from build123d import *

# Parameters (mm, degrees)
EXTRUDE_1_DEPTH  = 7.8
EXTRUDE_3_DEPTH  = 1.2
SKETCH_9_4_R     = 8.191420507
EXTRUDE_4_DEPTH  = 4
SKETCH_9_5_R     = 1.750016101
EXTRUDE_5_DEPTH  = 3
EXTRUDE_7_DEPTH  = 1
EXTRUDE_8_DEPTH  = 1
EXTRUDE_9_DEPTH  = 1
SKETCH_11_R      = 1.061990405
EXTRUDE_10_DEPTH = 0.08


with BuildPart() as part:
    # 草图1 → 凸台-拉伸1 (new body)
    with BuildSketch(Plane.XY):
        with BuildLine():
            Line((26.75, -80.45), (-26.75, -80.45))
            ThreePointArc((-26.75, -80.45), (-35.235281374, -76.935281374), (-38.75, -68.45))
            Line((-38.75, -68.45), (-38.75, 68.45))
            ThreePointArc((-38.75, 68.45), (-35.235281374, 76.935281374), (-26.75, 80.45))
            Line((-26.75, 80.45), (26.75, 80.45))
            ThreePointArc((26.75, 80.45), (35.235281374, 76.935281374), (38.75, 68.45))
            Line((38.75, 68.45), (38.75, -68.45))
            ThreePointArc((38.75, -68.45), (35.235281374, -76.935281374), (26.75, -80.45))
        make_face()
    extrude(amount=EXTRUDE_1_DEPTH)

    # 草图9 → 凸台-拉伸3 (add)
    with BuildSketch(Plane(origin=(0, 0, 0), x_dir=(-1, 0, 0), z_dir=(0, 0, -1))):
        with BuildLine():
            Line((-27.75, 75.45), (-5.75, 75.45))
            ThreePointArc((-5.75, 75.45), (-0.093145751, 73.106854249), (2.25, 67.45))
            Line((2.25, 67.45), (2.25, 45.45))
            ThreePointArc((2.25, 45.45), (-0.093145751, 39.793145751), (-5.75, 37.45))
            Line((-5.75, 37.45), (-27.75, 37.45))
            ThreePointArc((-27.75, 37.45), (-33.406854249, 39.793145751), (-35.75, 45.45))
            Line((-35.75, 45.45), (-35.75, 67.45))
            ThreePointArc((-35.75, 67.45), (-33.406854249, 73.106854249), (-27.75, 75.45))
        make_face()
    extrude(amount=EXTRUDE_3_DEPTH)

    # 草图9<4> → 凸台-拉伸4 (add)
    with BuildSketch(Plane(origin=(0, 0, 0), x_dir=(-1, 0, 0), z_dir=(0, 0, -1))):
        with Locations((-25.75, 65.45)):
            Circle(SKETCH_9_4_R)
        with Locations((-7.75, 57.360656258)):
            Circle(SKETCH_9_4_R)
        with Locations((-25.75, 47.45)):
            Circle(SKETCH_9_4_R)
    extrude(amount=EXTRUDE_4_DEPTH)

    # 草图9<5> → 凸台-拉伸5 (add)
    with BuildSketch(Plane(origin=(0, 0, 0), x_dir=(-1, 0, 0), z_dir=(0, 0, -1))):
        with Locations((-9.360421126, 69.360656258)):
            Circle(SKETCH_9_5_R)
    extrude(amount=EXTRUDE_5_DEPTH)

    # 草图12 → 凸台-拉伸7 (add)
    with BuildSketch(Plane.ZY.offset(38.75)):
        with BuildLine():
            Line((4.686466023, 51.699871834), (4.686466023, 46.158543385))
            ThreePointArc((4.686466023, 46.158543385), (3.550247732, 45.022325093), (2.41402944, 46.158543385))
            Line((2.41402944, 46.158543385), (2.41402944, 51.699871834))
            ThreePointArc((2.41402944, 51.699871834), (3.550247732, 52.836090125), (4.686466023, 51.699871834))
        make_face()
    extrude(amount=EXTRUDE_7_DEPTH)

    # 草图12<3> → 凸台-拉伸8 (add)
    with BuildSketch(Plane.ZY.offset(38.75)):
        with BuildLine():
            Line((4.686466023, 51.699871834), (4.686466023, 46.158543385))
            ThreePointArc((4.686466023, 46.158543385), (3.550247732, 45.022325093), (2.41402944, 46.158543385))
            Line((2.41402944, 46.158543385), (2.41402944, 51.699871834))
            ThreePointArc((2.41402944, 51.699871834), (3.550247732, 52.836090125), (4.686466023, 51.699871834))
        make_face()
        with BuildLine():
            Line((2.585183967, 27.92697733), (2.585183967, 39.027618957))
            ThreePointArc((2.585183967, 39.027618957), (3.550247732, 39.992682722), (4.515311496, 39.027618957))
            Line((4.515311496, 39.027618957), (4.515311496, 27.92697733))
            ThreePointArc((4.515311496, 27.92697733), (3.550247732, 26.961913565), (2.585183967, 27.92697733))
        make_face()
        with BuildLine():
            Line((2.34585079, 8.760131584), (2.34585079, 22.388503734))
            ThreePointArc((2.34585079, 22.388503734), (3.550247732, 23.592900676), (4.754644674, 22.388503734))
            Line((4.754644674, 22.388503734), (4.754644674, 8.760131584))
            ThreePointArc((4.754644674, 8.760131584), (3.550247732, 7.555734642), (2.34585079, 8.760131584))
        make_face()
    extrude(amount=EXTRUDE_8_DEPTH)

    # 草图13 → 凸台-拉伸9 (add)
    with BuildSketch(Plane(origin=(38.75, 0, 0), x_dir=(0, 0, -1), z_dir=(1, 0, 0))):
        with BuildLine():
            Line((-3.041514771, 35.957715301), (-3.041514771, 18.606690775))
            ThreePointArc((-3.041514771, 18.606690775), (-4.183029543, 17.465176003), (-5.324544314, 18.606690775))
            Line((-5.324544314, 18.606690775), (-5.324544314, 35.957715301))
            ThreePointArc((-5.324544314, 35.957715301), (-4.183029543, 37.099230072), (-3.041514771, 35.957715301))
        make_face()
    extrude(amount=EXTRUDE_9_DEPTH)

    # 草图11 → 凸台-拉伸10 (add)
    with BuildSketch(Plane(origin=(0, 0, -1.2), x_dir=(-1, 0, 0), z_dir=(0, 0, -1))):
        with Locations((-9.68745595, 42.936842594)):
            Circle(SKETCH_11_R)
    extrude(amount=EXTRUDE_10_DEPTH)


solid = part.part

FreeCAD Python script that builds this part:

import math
import FreeCAD as App
import Part
import Sketcher

V = App.Vector

doc = App.newDocument("Part")
body = doc.addObject("PartDesign::Body", "Body")

# Sketch on XY plane
sketch1 = body.newObject("Sketcher::SketchObject", "Sketch")
sketch1.AttachmentSupport = (doc.getObject("XY_Plane"), [""])
sketch1.MapMode = "FlatFace"
sketch1.addGeometry([
    Part.LineSegment(V(-27, -80, 0), V(27, -80, 0)),  # 0
    Part.ArcOfCircle(Part.Circle(V(27, -68, 0), V(0, 0, 1), 12), math.radians(-90), math.radians(0)),  # 1
    Part.LineSegment(V(39, -68, 0), V(39, 68, 0)),  # 2
    Part.ArcOfCircle(Part.Circle(V(27, 68, 0), V(0, 0, 1), 12), math.radians(0), math.radians(90)),  # 3
    Part.LineSegment(V(27, 80, 0), V(-27, 80, 0)),  # 4
    Part.ArcOfCircle(Part.Circle(V(-27, 68, 0), V(0, 0, 1), 12), math.radians(90), math.radians(180)),  # 5
    Part.LineSegment(V(-39, 68, 0), V(-39, -68, 0)),  # 6
    Part.ArcOfCircle(Part.Circle(V(-27, -68, 0), V(0, 0, 1), 12), math.radians(-180), math.radians(-90)),  # 7
], False)
sketch1.addConstraint([
    Sketcher.Constraint("Tangent", 0, 2, 1, 1),
    Sketcher.Constraint("Tangent", 1, 2, 2, 1),
    Sketcher.Constraint("Tangent", 2, 2, 3, 1),
    Sketcher.Constraint("Tangent", 3, 2, 4, 1),
    Sketcher.Constraint("Tangent", 4, 2, 5, 1),
    Sketcher.Constraint("Tangent", 5, 2, 6, 1),
    Sketcher.Constraint("Tangent", 6, 2, 7, 1),
    Sketcher.Constraint("Tangent", 7, 2, 0, 1),
    Sketcher.Constraint("Horizontal", 0),
    Sketcher.Constraint("Vertical", 2),
    Sketcher.Constraint("Horizontal", 4),
    Sketcher.Constraint("Vertical", 6),
    Sketcher.Constraint("Equal", 1, 3),
    Sketcher.Constraint("Equal", 3, 5),
    Sketcher.Constraint("Equal", 5, 7),
    Sketcher.Constraint("Symmetric", 1, 3, 5, 3, -1, 1),
    Sketcher.Constraint("Radius", 1, 12.0),
    Sketcher.Constraint("DistanceX", 0, 1, 0, 2, 53.5),
    Sketcher.Constraint("DistanceY", 2, 1, 2, 2, 136.9),
])
pad1 = body.newObject("PartDesign::Pad", "Pad")
pad1.Profile = sketch1
pad1.Length = 7.8

# Sketch on XY plane
sketch2 = body.newObject("Sketcher::SketchObject", "Sketch001")
sketch2.AttachmentSupport = (doc.getObject("XY_Plane"), [""])
sketch2.MapMode = "FlatFace"
sketch2.addGeometry([
    Part.LineSegment(V(6, 75, 0), V(28, 75, 0)),  # 0
    Part.ArcOfCircle(Part.Circle(V(28, 67, 0), V(0, 0, 1), 8), math.radians(0), math.radians(90)),  # 1
    Part.LineSegment(V(36, 67, 0), V(36, 45, 0)),  # 2
    Part.ArcOfCircle(Part.Circle(V(28, 45, 0), V(0, 0, 1), 8), math.radians(-90), math.radians(0)),  # 3
    Part.LineSegment(V(28, 37, 0), V(6, 37, 0)),  # 4
    Part.ArcOfCircle(Part.Circle(V(6, 45, 0), V(0, 0, 1), 8), math.radians(-180), math.radians(-90)),  # 5
    Part.LineSegment(V(-2, 45, 0), V(-2, 67, 0)),  # 6
    Part.ArcOfCircle(Part.Circle(V(6, 67, 0), V(0, 0, 1), 8), math.radians(90), math.radians(180)),  # 7
], False)
sketch2.addConstraint([
    Sketcher.Constraint("Tangent", 0, 2, 1, 2),
    Sketcher.Constraint("Tangent", 1, 1, 2, 1),
    Sketcher.Constraint("Tangent", 2, 2, 3, 2),
    Sketcher.Constraint("Tangent", 3, 1, 4, 1),
    Sketcher.Constraint("Tangent", 4, 2, 5, 2),
    Sketcher.Constraint("Tangent", 5, 1, 6, 1),
    Sketcher.Constraint("Tangent", 6, 2, 7, 2),
    Sketcher.Constraint("Tangent", 7, 1, 0, 1),
    Sketcher.Constraint("Horizontal", 0),
    Sketcher.Constraint("Vertical", 2),
    Sketcher.Constraint("Horizontal", 4),
    Sketcher.Constraint("Vertical", 6),
    Sketcher.Constraint("Equal", 1, 3),
    Sketcher.Constraint("Equal", 3, 5),
    Sketcher.Constraint("Equal", 5, 7),
    Sketcher.Constraint("Equal", 4, 2),
    Sketcher.Constraint("Radius", 1, 8.0),
    Sketcher.Constraint("DistanceX", 0, 1, 0, 2, 22.0),
    Sketcher.Constraint("DistanceX", -1, 1, 1, 3, 27.75),
    Sketcher.Constraint("DistanceY", -1, 1, 1, 3, 67.45),
])
pad2 = body.newObject("PartDesign::Pad", "Pad001")
pad2.Profile = sketch2
pad2.Length = 1.2
pad2.Reversed = True

# Sketch on XY plane
sketch3 = body.newObject("Sketcher::SketchObject", "Sketch002")
sketch3.AttachmentSupport = (doc.getObject("XY_Plane"), [""])
sketch3.MapMode = "FlatFace"
sketch3.addGeometry([
    Part.Circle(V(26, 65, 0), V(0, 0, 1), 8),
    Part.Circle(V(8, 57, 0), V(0, 0, 1), 8),
    Part.Circle(V(26, 47, 0), V(0, 0, 1), 8),
], False)
sketch3.addConstraint([
    Sketcher.Constraint("Equal", 0, 1),
    Sketcher.Constraint("Equal", 1, 2),
    Sketcher.Constraint("Vertical", 0, 3, 2, 3),
    Sketcher.Constraint("DistanceX", 1, 3, 0, 3, 18.0),
    Sketcher.Constraint("DistanceY", 2, 3, 0, 3, 18.0),
    Sketcher.Constraint("Diameter", 0, 16.382841),
    Sketcher.Constraint("DistanceX", -1, 1, 0, 3, 25.75),
    Sketcher.Constraint("DistanceY", -1, 1, 0, 3, 65.45),
    Sketcher.Constraint("DistanceY", -1, 1, 1, 3, 57.360656),
])
pad3 = body.newObject("PartDesign::Pad", "Pad002")
pad3.Profile = sketch3
pad3.Length = 4
pad3.Reversed = True

# Sketch on XY plane
sketch4 = body.newObject("Sketcher::SketchObject", "Sketch003")
sketch4.AttachmentSupport = (doc.getObject("XY_Plane"), [""])
sketch4.MapMode = "FlatFace"
sketch4.addGeometry(Part.Circle(V(9.4, 69.4, 0), V(0, 0, 1), 1.8), False)
sketch4.addConstraint([
    Sketcher.Constraint("Diameter", 0, 3.500032),
    Sketcher.Constraint("DistanceX", -1, 1, 0, 3, 9.360421),
    Sketcher.Constraint("DistanceY", -1, 1, 0, 3, 69.360656),
])
pad4 = body.newObject("PartDesign::Pad", "Pad003")
pad4.Profile = sketch4
pad4.Length = 3
pad4.Reversed = True

# Sketch on YZ plane
sketch5 = body.newObject("Sketcher::SketchObject", "Sketch004")
sketch5.AttachmentSupport = (doc.getObject("YZ_Plane"), [""])
sketch5.MapMode = "FlatFace"
sketch5.AttachmentOffset = App.Placement(V(0, 0, -38.75), App.Rotation())
sketch5.addGeometry([
    Part.LineSegment(V(46.2, 4.7, 0), V(51.7, 4.7, 0)),
    Part.ArcOfCircle(Part.Circle(V(51.7, 3.6, 0), V(0, 0, 1), 1.1), math.radians(-90), math.radians(90)),
    Part.LineSegment(V(51.7, 2.4, 0), V(46.2, 2.4, 0)),
    Part.ArcOfCircle(Part.Circle(V(46.2, 3.6, 0), V(0, 0, 1), 1.1), math.radians(90), math.radians(270)),
], False)
sketch5.addConstraint([
    Sketcher.Constraint("Tangent", 0, 2, 1, 2),
    Sketcher.Constraint("Tangent", 1, 1, 2, 1),
    Sketcher.Constraint("Tangent", 2, 2, 3, 2),
    Sketcher.Constraint("Tangent", 3, 1, 0, 1),
    Sketcher.Constraint("Horizontal", 0),
    Sketcher.Constraint("Horizontal", 2),
    Sketcher.Constraint("Radius", 1, 1.136218),
    Sketcher.Constraint("DistanceX", 0, 1, 0, 2, 5.541328),
    Sketcher.Constraint("DistanceX", -1, 1, 1, 3, 51.699872),
    Sketcher.Constraint("DistanceY", -1, 1, 1, 1, 2.414029),
])
pad5 = body.newObject("PartDesign::Pad", "Pad004")
pad5.Profile = sketch5
pad5.Length = 1
pad5.Reversed = True

# Sketch on YZ plane
sketch6 = body.newObject("Sketcher::SketchObject", "Sketch005")
sketch6.AttachmentSupport = (doc.getObject("YZ_Plane"), [""])
sketch6.MapMode = "FlatFace"
sketch6.AttachmentOffset = App.Placement(V(0, 0, -38.75), App.Rotation())
sketch6.addGeometry([
    Part.LineSegment(V(46.2, 4.7, 0), V(51.7, 4.7, 0)),  # 0
    Part.ArcOfCircle(Part.Circle(V(51.7, 3.6, 0), V(0, 0, 1), 1.1), math.radians(-90), math.radians(90)),  # 1
    Part.LineSegment(V(51.7, 2.4, 0), V(46.2, 2.4, 0)),  # 2
    Part.ArcOfCircle(Part.Circle(V(46.2, 3.6, 0), V(0, 0, 1), 1.1), math.radians(90), math.radians(270)),  # 3
    Part.LineSegment(V(39, 2.6, 0), V(27.9, 2.6, 0)),  # 4
    Part.ArcOfCircle(Part.Circle(V(27.9, 3.6, 0), V(0, 0, 1), 1), math.radians(90), math.radians(270)),  # 5
    Part.LineSegment(V(27.9, 4.5, 0), V(39, 4.5, 0)),  # 6
    Part.ArcOfCircle(Part.Circle(V(39, 3.6, 0), V(0, 0, 1), 1), math.radians(-90), math.radians(90)),  # 7
    Part.LineSegment(V(22.4, 2.3, 0), V(8.8, 2.3, 0)),  # 8
    Part.ArcOfCircle(Part.Circle(V(8.8, 3.6, 0), V(0, 0, 1), 1.2), math.radians(90), math.radians(270)),  # 9
    Part.LineSegment(V(8.8, 4.8, 0), V(22.4, 4.8, 0)),  # 10
    Part.ArcOfCircle(Part.Circle(V(22.4, 3.6, 0), V(0, 0, 1), 1.2), math.radians(-90), math.radians(90)),  # 11
], False)
sketch6.addConstraint([
    Sketcher.Constraint("Tangent", 0, 2, 1, 2),
    Sketcher.Constraint("Tangent", 1, 1, 2, 1),
    Sketcher.Constraint("Tangent", 2, 2, 3, 2),
    Sketcher.Constraint("Tangent", 3, 1, 0, 1),
    Sketcher.Constraint("Tangent", 4, 2, 5, 2),
    Sketcher.Constraint("Tangent", 5, 1, 6, 1),
    Sketcher.Constraint("Tangent", 6, 2, 7, 2),
    Sketcher.Constraint("Tangent", 7, 1, 4, 1),
    Sketcher.Constraint("Tangent", 8, 2, 9, 2),
    Sketcher.Constraint("Tangent", 9, 1, 10, 1),
    Sketcher.Constraint("Tangent", 10, 2, 11, 2),
    Sketcher.Constraint("Tangent", 11, 1, 8, 1),
    Sketcher.Constraint("Horizontal", 0),
    Sketcher.Constraint("Horizontal", 2),
    Sketcher.Constraint("Horizontal", 4),
    Sketcher.Constraint("Horizontal", 6),
    Sketcher.Constraint("Horizontal", 8),
    Sketcher.Constraint("Horizontal", 10),
    Sketcher.Constraint("Horizontal", 3, 3, 5, 3),
    Sketcher.Constraint("Horizontal", 7, 3, 9, 3),
    Sketcher.Constraint("Radius", 1, 1.136218),
    Sketcher.Constraint("Radius", 5, 0.965064),
    Sketcher.Constraint("Radius", 9, 1.204397),
    Sketcher.Constraint("DistanceX", 0, 1, 0, 2, 5.541328),
    Sketcher.Constraint("DistanceX", 4, 2, 4, 1, 11.100642),
    Sketcher.Constraint("DistanceX", 8, 2, 8, 1, 13.628372),
    Sketcher.Constraint("DistanceX", -1, 1, 1, 3, 51.699872),
    Sketcher.Constraint("DistanceX", -1, 1, 7, 3, 39.027619),
    Sketcher.Constraint("DistanceX", -1, 1, 9, 3, 8.760132),
    Sketcher.Constraint("DistanceY", -1, 1, 1, 1, 2.414029),
])
pad6 = body.newObject("PartDesign::Pad", "Pad005")
pad6.Profile = sketch6
pad6.Length = 1
pad6.Reversed = True

# Sketch on YZ plane
sketch7 = body.newObject("Sketcher::SketchObject", "Sketch006")
sketch7.AttachmentSupport = (doc.getObject("YZ_Plane"), [""])
sketch7.MapMode = "FlatFace"
sketch7.AttachmentOffset = App.Placement(V(0, 0, 38.75), App.Rotation())
sketch7.addGeometry([
    Part.LineSegment(V(18.6, 3, 0), V(36, 3, 0)),
    Part.ArcOfCircle(Part.Circle(V(36, 4.2, 0), V(0, 0, 1), 1.1), math.radians(-90), math.radians(90)),
    Part.LineSegment(V(36, 5.3, 0), V(18.6, 5.3, 0)),
    Part.ArcOfCircle(Part.Circle(V(18.6, 4.2, 0), V(0, 0, 1), 1.1), math.radians(90), math.radians(270)),
], False)
sketch7.addConstraint([
    Sketcher.Constraint("Tangent", 0, 2, 1, 1),
    Sketcher.Constraint("Tangent", 1, 2, 2, 1),
    Sketcher.Constraint("Tangent", 2, 2, 3, 1),
    Sketcher.Constraint("Tangent", 3, 2, 0, 1),
    Sketcher.Constraint("Horizontal", 0),
    Sketcher.Constraint("Horizontal", 2),
    Sketcher.Constraint("Radius", 1, 1.141515),
    Sketcher.Constraint("DistanceX", 0, 1, 0, 2, 17.351025),
    Sketcher.Constraint("DistanceY", -1, 1, 1, 3, 4.18303),
    Sketcher.Constraint("DistanceX", -1, 1, 3, 3, 18.606691),
])
pad7 = body.newObject("PartDesign::Pad", "Pad006")
pad7.Profile = sketch7
pad7.Length = 1

# Sketch on XY plane
sketch8 = body.newObject("Sketcher::SketchObject", "Sketch007")
sketch8.AttachmentSupport = (doc.getObject("XY_Plane"), [""])
sketch8.MapMode = "FlatFace"
sketch8.AttachmentOffset = App.Placement(V(0, 0, -1.2), App.Rotation())
sketch8.addGeometry(Part.Circle(V(9.7, 42.9, 0), V(0, 0, 1), 1.1), False)
sketch8.addConstraint([
    Sketcher.Constraint("Diameter", 0, 2.123981),
    Sketcher.Constraint("DistanceX", -1, 1, 0, 3, 9.687456),
    Sketcher.Constraint("DistanceY", -1, 1, 0, 3, 42.936843),
])
pad8 = body.newObject("PartDesign::Pad", "Pad007")
pad8.Profile = sketch8
pad8.Length = 0.08
pad8.Reversed = True

doc.recompute()
